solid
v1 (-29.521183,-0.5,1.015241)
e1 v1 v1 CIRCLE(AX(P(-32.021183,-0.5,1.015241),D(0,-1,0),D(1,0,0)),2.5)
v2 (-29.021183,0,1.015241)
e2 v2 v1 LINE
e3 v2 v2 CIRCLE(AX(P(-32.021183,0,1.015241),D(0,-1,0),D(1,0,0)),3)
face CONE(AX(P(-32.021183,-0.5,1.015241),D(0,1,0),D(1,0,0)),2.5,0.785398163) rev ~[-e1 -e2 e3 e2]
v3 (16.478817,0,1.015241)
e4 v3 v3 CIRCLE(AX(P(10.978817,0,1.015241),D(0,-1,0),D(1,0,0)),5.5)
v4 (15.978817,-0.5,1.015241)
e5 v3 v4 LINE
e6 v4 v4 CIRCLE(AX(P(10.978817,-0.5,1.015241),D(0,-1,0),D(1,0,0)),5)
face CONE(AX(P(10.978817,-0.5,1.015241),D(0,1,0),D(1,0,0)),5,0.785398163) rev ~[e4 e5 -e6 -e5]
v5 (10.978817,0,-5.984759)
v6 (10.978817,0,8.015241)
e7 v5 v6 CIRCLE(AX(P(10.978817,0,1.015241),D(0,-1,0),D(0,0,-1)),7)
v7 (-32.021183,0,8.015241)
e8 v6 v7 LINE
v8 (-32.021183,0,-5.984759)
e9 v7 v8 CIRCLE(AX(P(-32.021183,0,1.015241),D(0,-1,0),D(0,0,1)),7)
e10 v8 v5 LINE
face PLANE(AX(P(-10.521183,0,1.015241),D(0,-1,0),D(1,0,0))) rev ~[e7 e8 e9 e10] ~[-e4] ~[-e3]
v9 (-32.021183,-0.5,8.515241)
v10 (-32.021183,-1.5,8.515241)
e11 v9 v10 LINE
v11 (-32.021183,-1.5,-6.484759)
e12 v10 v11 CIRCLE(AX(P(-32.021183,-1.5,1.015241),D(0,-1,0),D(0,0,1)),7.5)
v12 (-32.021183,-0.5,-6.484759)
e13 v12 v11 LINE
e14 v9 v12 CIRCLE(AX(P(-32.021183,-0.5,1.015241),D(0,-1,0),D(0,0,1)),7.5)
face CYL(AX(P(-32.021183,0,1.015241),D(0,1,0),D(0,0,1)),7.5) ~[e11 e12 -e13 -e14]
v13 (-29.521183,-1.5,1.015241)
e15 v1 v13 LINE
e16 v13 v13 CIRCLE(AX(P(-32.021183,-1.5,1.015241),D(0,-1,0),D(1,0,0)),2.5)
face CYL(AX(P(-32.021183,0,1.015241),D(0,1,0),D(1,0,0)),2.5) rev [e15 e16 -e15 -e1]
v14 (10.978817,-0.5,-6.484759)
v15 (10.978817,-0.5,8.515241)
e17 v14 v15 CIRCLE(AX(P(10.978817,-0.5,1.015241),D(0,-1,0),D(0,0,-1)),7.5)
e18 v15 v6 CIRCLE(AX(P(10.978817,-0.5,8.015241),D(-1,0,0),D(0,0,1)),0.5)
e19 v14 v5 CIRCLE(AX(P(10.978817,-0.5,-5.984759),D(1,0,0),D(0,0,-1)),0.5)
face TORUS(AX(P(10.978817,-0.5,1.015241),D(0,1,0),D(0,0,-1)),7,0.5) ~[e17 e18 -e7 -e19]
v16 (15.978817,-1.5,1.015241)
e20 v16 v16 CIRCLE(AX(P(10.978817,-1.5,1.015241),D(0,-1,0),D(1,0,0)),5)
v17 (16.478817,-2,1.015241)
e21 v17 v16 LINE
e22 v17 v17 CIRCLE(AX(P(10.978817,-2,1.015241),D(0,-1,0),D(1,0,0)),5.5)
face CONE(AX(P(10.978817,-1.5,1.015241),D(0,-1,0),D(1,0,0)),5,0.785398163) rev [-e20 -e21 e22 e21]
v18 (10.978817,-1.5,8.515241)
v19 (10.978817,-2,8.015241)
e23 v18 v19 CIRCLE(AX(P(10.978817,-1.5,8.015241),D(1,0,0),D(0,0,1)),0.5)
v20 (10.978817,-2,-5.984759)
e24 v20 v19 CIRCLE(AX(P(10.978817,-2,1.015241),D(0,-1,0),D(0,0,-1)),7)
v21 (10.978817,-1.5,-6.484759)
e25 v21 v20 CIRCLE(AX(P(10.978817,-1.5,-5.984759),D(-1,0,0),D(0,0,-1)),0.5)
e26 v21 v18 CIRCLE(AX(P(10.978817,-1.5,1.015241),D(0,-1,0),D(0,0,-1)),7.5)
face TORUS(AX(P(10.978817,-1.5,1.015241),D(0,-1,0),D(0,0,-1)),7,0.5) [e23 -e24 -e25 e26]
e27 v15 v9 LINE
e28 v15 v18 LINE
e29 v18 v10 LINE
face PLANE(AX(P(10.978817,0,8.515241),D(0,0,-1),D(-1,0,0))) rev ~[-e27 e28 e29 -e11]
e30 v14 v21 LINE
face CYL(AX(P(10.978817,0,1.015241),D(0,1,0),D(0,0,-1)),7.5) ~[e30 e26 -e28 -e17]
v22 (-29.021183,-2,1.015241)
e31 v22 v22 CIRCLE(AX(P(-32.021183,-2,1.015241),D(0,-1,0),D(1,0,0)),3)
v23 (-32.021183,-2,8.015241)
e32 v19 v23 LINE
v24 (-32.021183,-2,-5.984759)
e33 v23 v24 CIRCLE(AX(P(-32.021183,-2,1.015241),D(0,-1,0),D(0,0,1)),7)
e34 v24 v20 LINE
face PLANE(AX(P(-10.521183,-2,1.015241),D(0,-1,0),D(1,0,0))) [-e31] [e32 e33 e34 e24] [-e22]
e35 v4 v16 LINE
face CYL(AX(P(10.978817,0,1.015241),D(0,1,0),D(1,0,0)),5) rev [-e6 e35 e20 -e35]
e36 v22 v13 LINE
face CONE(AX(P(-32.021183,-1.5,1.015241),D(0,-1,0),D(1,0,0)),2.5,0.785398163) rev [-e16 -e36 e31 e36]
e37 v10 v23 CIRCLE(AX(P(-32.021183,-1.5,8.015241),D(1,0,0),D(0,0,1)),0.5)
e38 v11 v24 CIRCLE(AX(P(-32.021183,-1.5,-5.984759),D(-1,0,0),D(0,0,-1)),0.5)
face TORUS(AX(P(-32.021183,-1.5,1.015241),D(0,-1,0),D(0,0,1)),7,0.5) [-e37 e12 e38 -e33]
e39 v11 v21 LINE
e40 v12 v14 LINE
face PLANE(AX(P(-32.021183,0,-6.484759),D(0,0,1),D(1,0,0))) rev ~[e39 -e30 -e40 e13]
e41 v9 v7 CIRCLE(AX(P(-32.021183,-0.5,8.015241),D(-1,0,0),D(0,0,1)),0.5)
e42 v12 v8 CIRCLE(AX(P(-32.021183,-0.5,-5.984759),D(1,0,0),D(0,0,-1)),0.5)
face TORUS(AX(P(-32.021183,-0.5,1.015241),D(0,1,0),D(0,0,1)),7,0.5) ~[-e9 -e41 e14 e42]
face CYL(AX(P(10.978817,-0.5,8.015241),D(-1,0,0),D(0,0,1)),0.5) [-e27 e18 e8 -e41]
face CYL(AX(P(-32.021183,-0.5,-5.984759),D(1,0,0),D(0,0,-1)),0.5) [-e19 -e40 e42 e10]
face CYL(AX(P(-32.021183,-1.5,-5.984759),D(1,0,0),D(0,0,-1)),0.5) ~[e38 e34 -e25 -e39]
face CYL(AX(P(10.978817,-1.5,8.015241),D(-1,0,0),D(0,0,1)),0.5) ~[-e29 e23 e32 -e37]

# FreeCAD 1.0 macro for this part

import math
import FreeCAD as App
import Part
import Sketcher
from FreeCAD import Vector
Q = App.Units.Quantity


def edges_at(feature, points):
    """Names of the edges that pass closest to the given points."""
    edges = feature.Shape.Edges
    near = lambda p: min(range(len(edges)), key=lambda i: edges[i].distToShape(Part.Vertex(*p))[0])
    return sorted({f"Edge{near(p) + 1}" for p in points})

doc = App.newDocument("Part")
body = doc.addObject("PartDesign::Body", "Body")

# Sketch on XZ plane
sketch1 = body.newObject("Sketcher::SketchObject", "Sketch")
sketch1.AttachmentSupport = (doc.getObject("XZ_Plane"), [""])
sketch1.MapMode = "FlatFace"
sketch1.addGeometry([
    Part.LineSegment(Vector(11, 8.5, 0), Vector(-32, 8.5, 0)),  # 0
    Part.ArcOfCircle(Part.Circle(Vector(-32, 1, 0), Vector(0, 0, 1), 7.5), math.radians(90), math.radians(270)),  # 1
    Part.LineSegment(Vector(-32, -6.5, 0), Vector(11, -6.5, 0)),  # 2
    Part.ArcOfCircle(Part.Circle(Vector(11, 1, 0), Vector(0, 0, 1), 7.5), math.radians(-90), math.radians(90)),  # 3
    Part.Circle(Vector(-32, 1, 0), Vector(0, 0, 1), 2.5),  # 4
    Part.Circle(Vector(11, 1, 0), Vector(0, 0, 1), 5),  # 5
], False)
sketch1.addConstraint([
    Sketcher.Constraint("Tangent", 0, 2, 1, 1),
    Sketcher.Constraint("Tangent", 1, 2, 2, 1),
    Sketcher.Constraint("Tangent", 2, 2, 3, 1),
    Sketcher.Constraint("Tangent", 3, 2, 0, 1),
    Sketcher.Constraint("Horizontal", 0),
    Sketcher.Constraint("Horizontal", 2),
    Sketcher.Constraint("Coincident", 4, 3, 1, 3),
    Sketcher.Constraint("Coincident", 5, 3, 3, 3),
    Sketcher.Constraint("Diameter", 4, Q("5 mm")),
    Sketcher.Constraint("Diameter", 5, Q("10 mm")),
    Sketcher.Constraint("Radius", 1, Q("7.5 mm")),
    Sketcher.Constraint("DistanceX", 0, 2, 0, 1, Q("43 mm")),
    Sketcher.Constraint("DistanceY", -1, 1, 1, 3, Q("1.015241 mm")),
    Sketcher.Constraint("DistanceX", 1, 3, -1, 1, Q("32.021183 mm")),
])
pad1 = body.newObject("PartDesign::Pad", "Pad")
pad1.Profile = sketch1
pad1.Length = 2
doc.recompute()

fillet = body.newObject("PartDesign::Fillet", "Fillet")
fillet.Base = (pad1, edges_at(pad1, [(-10.521, -2, 8.515), (-39.521, 0, 1.015)]))
fillet.Radius = 0.5
doc.recompute()

chamfer = body.newObject("PartDesign::Chamfer", "Chamfer")
chamfer.Base = (fillet, edges_at(fillet, [
    (-34.521, -2, 1.015),
    (5.979, -2, 1.015),
    (-34.521, 0, 1.015),
    (5.979, 0, 1.015),
]))
chamfer.Size = 0.5

doc.recompute()
